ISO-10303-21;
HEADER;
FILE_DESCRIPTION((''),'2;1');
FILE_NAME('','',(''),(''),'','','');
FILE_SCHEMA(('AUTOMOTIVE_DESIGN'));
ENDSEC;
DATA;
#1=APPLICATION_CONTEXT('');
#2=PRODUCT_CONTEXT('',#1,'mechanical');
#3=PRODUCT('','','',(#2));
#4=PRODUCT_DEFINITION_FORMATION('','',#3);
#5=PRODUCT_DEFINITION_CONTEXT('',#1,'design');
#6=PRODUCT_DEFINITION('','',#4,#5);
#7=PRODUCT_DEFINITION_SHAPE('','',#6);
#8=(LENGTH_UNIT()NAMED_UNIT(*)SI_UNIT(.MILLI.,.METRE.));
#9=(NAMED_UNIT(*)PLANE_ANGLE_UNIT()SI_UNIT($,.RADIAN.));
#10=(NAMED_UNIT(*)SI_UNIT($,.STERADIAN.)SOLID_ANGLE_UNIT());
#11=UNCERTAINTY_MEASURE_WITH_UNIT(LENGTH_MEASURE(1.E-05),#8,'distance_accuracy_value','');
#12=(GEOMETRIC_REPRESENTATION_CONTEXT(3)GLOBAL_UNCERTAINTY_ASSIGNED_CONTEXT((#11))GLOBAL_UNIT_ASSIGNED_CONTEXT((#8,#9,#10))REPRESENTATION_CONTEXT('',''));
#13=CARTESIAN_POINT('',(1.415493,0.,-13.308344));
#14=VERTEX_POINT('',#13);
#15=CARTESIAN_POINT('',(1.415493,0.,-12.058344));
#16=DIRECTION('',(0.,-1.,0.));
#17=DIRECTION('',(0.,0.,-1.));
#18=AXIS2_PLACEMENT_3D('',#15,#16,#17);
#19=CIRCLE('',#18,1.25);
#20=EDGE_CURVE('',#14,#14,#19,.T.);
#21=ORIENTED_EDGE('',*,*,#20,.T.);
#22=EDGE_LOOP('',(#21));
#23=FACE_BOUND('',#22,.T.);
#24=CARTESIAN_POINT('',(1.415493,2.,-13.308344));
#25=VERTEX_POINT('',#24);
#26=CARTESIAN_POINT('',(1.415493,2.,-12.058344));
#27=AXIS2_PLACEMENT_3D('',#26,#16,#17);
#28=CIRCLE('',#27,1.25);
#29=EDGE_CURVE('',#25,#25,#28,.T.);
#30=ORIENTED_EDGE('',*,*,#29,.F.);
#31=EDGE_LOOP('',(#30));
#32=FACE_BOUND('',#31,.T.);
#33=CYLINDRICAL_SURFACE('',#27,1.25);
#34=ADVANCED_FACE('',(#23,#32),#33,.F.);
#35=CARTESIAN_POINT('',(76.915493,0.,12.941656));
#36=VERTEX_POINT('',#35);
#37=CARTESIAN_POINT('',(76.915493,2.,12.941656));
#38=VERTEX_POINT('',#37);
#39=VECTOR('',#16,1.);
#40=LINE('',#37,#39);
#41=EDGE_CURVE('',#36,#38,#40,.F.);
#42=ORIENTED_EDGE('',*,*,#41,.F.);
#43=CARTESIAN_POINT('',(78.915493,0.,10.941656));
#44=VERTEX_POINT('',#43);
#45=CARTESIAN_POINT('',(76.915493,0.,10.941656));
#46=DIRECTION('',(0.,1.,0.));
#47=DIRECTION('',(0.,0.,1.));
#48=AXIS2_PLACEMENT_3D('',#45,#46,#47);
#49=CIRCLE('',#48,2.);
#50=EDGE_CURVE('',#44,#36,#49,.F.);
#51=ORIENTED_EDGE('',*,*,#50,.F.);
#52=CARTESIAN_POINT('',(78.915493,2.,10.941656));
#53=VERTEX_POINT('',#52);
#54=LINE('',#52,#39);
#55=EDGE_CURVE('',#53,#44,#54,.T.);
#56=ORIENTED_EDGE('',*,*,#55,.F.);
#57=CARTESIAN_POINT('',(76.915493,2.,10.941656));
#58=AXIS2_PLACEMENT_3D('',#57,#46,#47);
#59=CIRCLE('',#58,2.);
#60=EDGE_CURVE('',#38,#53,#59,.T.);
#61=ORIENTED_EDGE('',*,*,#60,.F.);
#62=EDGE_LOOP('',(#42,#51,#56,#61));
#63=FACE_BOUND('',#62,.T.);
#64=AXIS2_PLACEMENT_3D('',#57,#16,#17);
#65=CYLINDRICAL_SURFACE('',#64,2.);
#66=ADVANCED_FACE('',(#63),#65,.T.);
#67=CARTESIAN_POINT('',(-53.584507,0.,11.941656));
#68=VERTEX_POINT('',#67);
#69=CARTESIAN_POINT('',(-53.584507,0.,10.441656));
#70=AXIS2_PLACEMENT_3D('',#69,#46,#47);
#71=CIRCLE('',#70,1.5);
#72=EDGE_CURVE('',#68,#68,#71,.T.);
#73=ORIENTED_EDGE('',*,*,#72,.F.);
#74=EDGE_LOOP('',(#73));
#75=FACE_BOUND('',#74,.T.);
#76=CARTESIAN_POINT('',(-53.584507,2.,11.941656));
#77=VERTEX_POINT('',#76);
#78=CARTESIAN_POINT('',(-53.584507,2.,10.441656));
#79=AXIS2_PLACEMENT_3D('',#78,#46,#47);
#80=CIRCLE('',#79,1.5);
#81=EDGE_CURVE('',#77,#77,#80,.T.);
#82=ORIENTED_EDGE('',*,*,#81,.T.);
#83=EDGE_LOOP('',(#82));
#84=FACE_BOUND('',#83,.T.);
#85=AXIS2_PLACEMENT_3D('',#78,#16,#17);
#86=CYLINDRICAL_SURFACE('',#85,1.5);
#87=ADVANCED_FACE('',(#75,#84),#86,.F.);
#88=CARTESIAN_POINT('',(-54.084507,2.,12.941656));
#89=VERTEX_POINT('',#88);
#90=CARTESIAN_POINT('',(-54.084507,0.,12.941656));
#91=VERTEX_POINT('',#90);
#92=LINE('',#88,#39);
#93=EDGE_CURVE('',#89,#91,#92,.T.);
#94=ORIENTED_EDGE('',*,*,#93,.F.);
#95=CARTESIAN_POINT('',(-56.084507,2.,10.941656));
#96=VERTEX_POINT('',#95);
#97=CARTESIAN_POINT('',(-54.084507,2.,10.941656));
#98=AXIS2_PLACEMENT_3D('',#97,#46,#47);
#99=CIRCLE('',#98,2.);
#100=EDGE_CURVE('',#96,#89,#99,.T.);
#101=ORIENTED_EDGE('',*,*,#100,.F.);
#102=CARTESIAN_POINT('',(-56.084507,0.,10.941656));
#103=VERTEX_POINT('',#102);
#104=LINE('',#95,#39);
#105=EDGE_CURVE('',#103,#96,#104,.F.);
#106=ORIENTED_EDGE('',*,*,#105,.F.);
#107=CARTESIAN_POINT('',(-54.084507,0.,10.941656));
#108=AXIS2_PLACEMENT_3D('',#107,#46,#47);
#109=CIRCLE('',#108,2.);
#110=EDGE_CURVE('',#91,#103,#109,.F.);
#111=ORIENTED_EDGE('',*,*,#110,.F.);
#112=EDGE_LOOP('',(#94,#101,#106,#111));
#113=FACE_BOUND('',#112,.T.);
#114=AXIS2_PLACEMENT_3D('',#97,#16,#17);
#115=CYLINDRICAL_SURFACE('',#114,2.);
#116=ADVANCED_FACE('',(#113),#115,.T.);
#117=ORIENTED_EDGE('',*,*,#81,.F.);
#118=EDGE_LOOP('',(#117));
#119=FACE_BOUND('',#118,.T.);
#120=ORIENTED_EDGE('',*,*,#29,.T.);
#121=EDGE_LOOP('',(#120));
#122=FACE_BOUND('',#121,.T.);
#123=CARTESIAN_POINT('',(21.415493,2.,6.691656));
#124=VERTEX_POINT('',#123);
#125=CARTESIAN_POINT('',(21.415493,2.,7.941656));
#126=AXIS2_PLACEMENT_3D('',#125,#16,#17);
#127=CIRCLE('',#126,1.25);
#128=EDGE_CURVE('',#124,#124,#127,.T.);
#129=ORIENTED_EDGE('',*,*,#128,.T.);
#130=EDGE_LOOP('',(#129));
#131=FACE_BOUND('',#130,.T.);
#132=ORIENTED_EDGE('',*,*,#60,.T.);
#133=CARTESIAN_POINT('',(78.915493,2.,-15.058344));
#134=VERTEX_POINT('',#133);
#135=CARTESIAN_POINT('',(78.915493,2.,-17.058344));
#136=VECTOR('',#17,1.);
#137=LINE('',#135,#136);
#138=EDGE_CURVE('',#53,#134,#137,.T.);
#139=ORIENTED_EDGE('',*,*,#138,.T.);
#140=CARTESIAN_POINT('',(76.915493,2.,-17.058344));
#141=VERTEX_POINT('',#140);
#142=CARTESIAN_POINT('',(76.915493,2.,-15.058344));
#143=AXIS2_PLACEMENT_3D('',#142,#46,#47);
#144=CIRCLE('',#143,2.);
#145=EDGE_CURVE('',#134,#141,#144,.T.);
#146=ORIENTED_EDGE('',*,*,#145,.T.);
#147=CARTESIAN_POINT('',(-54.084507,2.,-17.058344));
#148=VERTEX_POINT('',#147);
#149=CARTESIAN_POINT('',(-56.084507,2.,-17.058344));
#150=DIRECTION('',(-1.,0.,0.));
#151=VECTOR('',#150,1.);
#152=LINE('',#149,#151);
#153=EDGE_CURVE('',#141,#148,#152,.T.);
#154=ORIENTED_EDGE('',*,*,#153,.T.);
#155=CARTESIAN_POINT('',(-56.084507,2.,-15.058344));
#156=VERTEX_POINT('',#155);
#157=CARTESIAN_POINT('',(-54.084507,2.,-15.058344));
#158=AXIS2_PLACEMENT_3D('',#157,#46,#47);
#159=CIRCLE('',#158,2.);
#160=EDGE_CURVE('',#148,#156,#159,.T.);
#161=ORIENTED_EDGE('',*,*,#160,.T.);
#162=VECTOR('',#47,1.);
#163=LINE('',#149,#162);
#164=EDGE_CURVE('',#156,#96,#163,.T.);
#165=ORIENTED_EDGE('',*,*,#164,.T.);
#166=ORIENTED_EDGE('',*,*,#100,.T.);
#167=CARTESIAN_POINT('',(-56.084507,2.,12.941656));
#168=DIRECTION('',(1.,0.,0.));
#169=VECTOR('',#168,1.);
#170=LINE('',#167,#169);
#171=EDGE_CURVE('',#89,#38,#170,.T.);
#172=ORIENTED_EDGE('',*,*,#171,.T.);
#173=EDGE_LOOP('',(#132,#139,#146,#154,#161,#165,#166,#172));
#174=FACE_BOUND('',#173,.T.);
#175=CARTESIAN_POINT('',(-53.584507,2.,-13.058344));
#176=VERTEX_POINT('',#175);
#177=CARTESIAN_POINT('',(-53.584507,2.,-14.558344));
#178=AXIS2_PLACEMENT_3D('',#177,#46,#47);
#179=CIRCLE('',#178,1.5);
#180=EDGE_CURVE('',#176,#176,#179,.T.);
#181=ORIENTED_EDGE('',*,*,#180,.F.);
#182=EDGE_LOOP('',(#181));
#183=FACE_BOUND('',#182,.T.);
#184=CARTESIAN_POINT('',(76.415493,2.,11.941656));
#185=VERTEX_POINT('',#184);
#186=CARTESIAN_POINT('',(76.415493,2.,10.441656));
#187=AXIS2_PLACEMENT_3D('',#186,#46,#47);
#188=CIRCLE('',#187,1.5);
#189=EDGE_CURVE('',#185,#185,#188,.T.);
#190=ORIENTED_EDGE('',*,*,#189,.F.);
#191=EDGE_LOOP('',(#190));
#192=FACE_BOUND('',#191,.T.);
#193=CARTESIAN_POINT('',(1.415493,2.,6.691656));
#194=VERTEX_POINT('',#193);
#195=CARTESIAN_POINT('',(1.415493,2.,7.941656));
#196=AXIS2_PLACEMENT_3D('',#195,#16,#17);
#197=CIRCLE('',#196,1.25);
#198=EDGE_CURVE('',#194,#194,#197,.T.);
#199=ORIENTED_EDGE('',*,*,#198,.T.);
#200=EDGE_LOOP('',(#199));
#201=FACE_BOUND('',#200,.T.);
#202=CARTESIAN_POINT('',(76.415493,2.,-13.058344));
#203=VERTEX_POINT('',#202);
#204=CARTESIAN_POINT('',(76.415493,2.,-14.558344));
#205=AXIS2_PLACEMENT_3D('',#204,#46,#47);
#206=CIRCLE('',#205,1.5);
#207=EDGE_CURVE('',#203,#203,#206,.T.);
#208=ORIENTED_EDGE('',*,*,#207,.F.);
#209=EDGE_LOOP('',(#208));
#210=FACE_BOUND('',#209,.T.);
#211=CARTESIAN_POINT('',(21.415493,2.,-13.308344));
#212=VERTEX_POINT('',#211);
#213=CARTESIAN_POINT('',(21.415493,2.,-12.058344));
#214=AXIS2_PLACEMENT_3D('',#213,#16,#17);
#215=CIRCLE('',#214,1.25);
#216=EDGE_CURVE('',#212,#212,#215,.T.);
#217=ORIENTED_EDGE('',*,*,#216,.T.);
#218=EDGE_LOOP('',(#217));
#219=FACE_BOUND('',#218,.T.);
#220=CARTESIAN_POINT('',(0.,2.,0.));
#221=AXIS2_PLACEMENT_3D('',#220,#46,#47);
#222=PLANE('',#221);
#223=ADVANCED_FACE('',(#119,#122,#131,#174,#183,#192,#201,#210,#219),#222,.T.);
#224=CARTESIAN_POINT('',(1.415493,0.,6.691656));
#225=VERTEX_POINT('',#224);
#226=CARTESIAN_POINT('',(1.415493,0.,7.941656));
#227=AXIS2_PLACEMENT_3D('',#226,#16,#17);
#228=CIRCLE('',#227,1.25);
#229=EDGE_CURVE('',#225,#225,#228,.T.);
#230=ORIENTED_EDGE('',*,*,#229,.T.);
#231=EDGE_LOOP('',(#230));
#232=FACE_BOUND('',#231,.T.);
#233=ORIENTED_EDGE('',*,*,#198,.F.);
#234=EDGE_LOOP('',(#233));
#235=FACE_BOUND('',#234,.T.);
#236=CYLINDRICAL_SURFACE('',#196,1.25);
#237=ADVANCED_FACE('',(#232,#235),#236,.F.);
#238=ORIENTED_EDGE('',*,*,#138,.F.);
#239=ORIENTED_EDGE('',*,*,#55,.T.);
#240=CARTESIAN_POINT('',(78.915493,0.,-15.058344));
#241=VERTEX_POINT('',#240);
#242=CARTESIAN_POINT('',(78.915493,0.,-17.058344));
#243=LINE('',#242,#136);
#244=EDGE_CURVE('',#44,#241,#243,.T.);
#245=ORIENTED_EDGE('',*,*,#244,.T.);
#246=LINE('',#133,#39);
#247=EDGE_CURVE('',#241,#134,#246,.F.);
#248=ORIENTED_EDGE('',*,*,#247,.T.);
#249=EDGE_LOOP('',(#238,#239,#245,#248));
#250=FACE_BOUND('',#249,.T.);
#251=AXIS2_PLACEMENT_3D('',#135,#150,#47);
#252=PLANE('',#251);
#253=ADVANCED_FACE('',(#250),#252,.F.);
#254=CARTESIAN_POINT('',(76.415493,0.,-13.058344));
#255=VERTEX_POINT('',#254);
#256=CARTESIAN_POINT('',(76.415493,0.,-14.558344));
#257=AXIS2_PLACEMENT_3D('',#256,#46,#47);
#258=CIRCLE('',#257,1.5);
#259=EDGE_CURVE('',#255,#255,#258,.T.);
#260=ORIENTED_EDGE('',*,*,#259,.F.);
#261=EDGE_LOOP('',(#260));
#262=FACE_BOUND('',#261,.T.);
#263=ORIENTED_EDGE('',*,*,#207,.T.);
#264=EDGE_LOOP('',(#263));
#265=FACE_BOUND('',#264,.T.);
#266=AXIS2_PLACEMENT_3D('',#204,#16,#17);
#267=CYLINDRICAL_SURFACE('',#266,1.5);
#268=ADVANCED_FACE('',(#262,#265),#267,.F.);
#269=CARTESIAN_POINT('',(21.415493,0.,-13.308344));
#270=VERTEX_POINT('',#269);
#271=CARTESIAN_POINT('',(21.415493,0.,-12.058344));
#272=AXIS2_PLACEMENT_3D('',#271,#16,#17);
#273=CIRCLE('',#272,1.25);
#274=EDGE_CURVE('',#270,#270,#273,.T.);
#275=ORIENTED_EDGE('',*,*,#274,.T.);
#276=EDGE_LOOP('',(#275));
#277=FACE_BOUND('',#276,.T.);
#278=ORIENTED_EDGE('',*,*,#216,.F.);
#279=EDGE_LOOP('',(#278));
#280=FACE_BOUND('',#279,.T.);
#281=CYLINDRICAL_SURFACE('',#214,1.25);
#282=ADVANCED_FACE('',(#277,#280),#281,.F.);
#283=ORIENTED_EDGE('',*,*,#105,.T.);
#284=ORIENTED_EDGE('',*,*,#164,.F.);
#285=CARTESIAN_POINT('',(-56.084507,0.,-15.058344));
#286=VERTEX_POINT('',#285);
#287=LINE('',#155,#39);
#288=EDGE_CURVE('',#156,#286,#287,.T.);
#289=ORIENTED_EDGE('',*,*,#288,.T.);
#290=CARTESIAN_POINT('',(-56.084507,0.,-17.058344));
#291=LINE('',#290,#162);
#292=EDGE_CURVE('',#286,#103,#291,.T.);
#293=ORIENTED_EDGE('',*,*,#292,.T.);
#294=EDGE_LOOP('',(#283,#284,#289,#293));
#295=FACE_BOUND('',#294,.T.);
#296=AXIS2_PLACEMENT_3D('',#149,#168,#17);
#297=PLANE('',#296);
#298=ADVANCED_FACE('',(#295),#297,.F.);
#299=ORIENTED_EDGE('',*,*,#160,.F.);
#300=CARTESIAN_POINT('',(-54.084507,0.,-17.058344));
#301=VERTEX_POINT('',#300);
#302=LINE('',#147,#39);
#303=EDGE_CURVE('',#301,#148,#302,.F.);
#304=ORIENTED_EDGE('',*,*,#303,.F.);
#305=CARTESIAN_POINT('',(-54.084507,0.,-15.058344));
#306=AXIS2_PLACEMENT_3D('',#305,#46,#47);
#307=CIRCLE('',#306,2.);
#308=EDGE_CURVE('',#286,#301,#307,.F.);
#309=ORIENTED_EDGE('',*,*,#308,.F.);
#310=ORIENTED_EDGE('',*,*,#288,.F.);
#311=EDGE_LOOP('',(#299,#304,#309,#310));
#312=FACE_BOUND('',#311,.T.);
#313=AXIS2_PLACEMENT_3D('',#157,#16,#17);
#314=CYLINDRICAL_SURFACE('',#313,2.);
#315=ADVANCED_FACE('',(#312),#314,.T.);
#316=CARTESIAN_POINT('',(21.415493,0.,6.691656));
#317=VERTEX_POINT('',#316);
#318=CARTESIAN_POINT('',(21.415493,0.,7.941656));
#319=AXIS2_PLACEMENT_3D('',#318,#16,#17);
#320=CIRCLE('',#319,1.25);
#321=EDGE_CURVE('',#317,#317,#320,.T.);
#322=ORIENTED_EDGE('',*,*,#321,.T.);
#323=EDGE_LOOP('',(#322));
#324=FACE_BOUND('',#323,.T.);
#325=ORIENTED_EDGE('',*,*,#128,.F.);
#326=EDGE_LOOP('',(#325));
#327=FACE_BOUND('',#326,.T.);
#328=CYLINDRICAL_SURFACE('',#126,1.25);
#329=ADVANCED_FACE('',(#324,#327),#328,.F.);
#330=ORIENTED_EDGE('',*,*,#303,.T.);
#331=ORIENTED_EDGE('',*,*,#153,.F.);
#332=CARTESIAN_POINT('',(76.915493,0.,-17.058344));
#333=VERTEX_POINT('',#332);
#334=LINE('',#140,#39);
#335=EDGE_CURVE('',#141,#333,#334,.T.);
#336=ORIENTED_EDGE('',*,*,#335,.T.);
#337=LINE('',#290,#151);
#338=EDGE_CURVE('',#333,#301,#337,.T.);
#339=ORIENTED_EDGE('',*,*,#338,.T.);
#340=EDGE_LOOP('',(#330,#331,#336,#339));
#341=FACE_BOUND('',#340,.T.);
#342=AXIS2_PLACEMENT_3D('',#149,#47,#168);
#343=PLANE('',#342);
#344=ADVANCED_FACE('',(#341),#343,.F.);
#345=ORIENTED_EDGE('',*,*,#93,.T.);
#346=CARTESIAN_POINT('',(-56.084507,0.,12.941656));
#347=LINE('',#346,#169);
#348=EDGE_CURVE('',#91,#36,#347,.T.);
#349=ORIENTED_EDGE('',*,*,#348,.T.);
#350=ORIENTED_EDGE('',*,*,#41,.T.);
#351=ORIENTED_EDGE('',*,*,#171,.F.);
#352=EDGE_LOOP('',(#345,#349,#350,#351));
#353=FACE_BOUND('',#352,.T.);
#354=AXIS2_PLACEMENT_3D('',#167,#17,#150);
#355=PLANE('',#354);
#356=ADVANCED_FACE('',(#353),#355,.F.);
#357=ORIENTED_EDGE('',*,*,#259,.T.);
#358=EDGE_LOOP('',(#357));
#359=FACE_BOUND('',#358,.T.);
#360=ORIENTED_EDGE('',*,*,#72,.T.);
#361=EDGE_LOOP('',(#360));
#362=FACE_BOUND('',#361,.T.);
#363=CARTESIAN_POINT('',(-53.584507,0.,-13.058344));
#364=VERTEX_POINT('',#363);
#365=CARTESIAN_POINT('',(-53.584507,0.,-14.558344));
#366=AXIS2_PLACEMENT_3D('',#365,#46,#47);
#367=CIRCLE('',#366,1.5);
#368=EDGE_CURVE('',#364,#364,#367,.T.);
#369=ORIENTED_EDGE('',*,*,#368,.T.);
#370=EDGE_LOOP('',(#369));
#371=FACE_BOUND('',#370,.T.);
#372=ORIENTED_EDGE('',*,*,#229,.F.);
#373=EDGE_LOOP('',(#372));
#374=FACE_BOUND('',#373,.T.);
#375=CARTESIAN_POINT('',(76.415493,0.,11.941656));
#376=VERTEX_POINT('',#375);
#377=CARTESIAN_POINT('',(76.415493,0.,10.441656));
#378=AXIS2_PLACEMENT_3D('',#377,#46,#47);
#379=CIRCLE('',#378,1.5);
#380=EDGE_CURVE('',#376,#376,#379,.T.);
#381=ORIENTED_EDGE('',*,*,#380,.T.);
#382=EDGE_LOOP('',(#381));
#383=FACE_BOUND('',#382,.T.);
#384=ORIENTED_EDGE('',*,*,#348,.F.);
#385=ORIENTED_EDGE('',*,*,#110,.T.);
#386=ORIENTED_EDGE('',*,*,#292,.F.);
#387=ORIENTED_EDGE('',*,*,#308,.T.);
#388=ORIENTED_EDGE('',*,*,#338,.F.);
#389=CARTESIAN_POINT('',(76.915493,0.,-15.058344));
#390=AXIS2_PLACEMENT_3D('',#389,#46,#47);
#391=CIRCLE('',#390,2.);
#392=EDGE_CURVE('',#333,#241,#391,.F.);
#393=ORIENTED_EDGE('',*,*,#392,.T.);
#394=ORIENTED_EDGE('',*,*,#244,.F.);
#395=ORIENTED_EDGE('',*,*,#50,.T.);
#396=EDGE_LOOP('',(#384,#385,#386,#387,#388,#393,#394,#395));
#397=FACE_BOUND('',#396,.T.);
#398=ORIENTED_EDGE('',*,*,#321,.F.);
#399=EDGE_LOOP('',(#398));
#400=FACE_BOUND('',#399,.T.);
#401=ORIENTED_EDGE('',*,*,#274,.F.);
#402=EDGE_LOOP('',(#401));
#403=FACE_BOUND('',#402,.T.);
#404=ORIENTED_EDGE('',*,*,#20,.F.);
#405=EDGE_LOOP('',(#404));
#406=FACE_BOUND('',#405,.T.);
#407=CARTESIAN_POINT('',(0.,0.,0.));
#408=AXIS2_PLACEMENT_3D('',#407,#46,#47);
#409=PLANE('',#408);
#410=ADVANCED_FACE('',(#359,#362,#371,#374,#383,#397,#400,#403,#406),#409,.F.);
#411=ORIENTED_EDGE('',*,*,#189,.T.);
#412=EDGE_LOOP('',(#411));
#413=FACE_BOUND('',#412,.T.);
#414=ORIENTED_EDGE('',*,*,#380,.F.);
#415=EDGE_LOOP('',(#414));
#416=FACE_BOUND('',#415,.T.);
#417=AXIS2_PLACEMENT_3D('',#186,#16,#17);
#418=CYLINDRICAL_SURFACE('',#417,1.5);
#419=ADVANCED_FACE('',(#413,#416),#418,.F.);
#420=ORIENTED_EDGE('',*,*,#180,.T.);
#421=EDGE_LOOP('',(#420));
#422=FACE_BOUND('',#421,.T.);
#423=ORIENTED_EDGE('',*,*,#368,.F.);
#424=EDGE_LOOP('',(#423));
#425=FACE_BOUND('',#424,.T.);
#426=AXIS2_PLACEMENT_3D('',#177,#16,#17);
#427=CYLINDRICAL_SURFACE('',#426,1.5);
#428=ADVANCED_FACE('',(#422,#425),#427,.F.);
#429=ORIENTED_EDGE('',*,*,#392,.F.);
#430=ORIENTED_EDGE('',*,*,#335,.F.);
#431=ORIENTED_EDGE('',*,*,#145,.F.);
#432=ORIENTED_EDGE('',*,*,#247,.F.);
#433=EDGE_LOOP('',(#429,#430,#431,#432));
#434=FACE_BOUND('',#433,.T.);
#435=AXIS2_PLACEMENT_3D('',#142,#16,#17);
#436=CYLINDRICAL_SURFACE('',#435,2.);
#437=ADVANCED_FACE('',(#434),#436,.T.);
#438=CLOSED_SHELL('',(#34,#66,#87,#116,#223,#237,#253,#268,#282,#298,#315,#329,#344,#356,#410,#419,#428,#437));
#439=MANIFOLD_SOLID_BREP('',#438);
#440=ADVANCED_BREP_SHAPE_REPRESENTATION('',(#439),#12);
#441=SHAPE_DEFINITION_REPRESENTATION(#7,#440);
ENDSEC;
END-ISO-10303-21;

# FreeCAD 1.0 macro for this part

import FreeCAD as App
import Part
import Sketcher
Q = App.Units.Quantity


def edges_at(feature, points):
    """Names of the edges that pass closest to the given points."""
    edges = feature.Shape.Edges
    near = lambda p: min(range(len(edges)), key=lambda i: edges[i].distToShape(Part.Vertex(*p))[0])
    return sorted({f"Edge{near(p) + 1}" for p in points})


def add_polygon(sketch, points):
    """Adds a closed chain of lines whose ends are joined by coincident constraints."""
    first, n = sketch.GeometryCount, len(points)
    for a, b in zip(points, points[1:] + points[:1]):
        sketch.addGeometry(Part.LineSegment(App.Vector(*a, 0), App.Vector(*b, 0)), False)
    for i in range(n):
        sketch.addConstraint(Sketcher.Constraint("Coincident", first + i, 2, first + (i + 1) % n, 1))

doc = App.newDocument("Part")
params = doc.addObject("Spreadsheet::Sheet", "Params")
for row, (alias, value) in enumerate([
    ("sketch1_diameter", "3 mm"),
    ("sketch1_width", "135 mm"),
    ("sketch1_height", "30 mm"),
    ("pad1_length", "2 mm"),
    ("fillet_radius", "2 mm"),
    ("sketch2_diameter", "2.5 mm"),
    ("pocket1_length", "2 mm"),
], start=1):
    params.set(f"A{row}", alias)
    params.set(f"B{row}", "=" + value)
    params.setAlias(f"B{row}", alias)

body = doc.addObject("PartDesign::Body", "Body")

sketch1 = doc.addObject("Sketcher::SketchObject", "Sketch")
body.addObject(sketch1)
sketch1.AttachmentSupport = (doc.XZ_Plane, [""])
sketch1.MapMode = "FlatFace"
add_polygon(sketch1, [(-56.1, -17.1), (-56.1, 12.9), (78.9, 12.9), (78.9, -17.1)])
sketch1.addGeometry(Part.Circle(App.Vector(-53.6, 10.4, 0), App.Vector(0, 0, 1), 1.5), False)
sketch1.addGeometry(Part.Circle(App.Vector(76.4, 10.4, 0), App.Vector(0, 0, 1), 1.5), False)
sketch1.addGeometry(Part.Circle(App.Vector(-53.6, -14.6, 0), App.Vector(0, 0, 1), 1.5), False)
sketch1.addGeometry(Part.Circle(App.Vector(76.4, -14.6, 0), App.Vector(0, 0, 1), 1.5), False)
sketch1.addConstraint(Sketcher.Constraint("Vertical", 0))
sketch1.addConstraint(Sketcher.Constraint("Horizontal", 1))
sketch1.addConstraint(Sketcher.Constraint("Vertical", 2))
sketch1.addConstraint(Sketcher.Constraint("Horizontal", 3))
sketch1.addConstraint(Sketcher.Constraint("Equal", 4, 5))
sketch1.addConstraint(Sketcher.Constraint("Equal", 5, 6))
sketch1.addConstraint(Sketcher.Constraint("Equal", 6, 7))
sketch1.addConstraint(Sketcher.Constraint("Horizontal", 4, 3, 5, 3))
sketch1.addConstraint(Sketcher.Constraint("Horizontal", 6, 3, 7, 3))
sketch1.addConstraint(Sketcher.Constraint("Vertical", 4, 3, 6, 3))
sketch1.addConstraint(Sketcher.Constraint("Vertical", 5, 3, 7, 3))
sketch1.addConstraint(Sketcher.Constraint("Diameter", 4, Q("3 mm")))
sketch1.addConstraint(Sketcher.Constraint("DistanceX", 1, 1, 1, 2, Q("135 mm")))
sketch1.addConstraint(Sketcher.Constraint("DistanceY", 0, 1, 0, 2, Q("30 mm")))
sketch1.addConstraint(Sketcher.Constraint("DistanceX", 4, 3, 5, 3, Q("130 mm")))
sketch1.addConstraint(Sketcher.Constraint("DistanceY", 6, 3, 4, 3, Q("25 mm")))
sketch1.addConstraint(Sketcher.Constraint("DistanceX", 0, 2, 4, 3, Q("2.5 mm")))
sketch1.addConstraint(Sketcher.Constraint("DistanceY", 4, 3, 0, 2, Q("2.5 mm")))
sketch1.addConstraint(Sketcher.Constraint("DistanceX", 4, 3, -1, 1, Q("53.584507 mm")))
sketch1.addConstraint(Sketcher.Constraint("DistanceY", -1, 1, 4, 3, Q("10.441656 mm")))
sketch1.setExpression("Constraints[15]", "Params.sketch1_diameter")
sketch1.setExpression("Constraints[16]", "Params.sketch1_width")
sketch1.setExpression("Constraints[17]", "Params.sketch1_height")
pad1 = doc.addObject("PartDesign::Pad", "Pad")
body.addObject(pad1)
pad1.Profile = sketch1
pad1.setExpression("Length", "Params.pad1_length")
pad1.Reversed = True
doc.recompute()

fillet = doc.addObject("PartDesign::Fillet", "Fillet")
body.addObject(fillet)
fillet.Base = (pad1, edges_at(pad1, [
    (-56.085, 1, -17.058),
    (78.915, 1, -17.058),
    (78.915, 1, 12.942),
    (-56.085, 1, 12.942),
]))
fillet.setExpression("Radius", "Params.fillet_radius")

sketch2 = doc.addObject("Sketcher::SketchObject", "Sketch001")
body.addObject(sketch2)
sketch2.AttachmentSupport = (doc.XZ_Plane, [""])
sketch2.MapMode = "FlatFace"
sketch2.addGeometry(Part.Circle(App.Vector(1.4, 7.9, 0), App.Vector(0, 0, 1), 1.2), False)
sketch2.addGeometry(Part.Circle(App.Vector(21.4, 7.9, 0), App.Vector(0, 0, 1), 1.2), False)
sketch2.addGeometry(Part.Circle(App.Vector(1.4, -12.1, 0), App.Vector(0, 0, 1), 1.2), False)
sketch2.addGeometry(Part.Circle(App.Vector(21.4, -12.1, 0), App.Vector(0, 0, 1), 1.2), False)
sketch2.addConstraint(Sketcher.Constraint("Equal", 0, 1))
sketch2.addConstraint(Sketcher.Constraint("Equal", 1, 2))
sketch2.addConstraint(Sketcher.Constraint("Equal", 2, 3))
sketch2.addConstraint(Sketcher.Constraint("Horizontal", 0, 3, 1, 3))
sketch2.addConstraint(Sketcher.Constraint("Horizontal", 2, 3, 3, 3))
sketch2.addConstraint(Sketcher.Constraint("Vertical", 0, 3, 2, 3))
sketch2.addConstraint(Sketcher.Constraint("Vertical", 1, 3, 3, 3))
sketch2.addConstraint(Sketcher.Constraint("Diameter", 0, Q("2.5 mm")))
sketch2.addConstraint(Sketcher.Constraint("DistanceX", 0, 3, 1, 3, Q("20 mm")))
sketch2.addConstraint(Sketcher.Constraint("DistanceY", 2, 3, 0, 3, Q("20 mm")))
sketch2.addConstraint(Sketcher.Constraint("DistanceX", -1, 1, 0, 3, Q("1.415493 mm")))
sketch2.addConstraint(Sketcher.Constraint("DistanceY", -1, 1, 0, 3, Q("7.941656 mm")))
sketch2.setExpression("Constraints[7]", "Params.sketch2_diameter")
pocket1 = doc.addObject("PartDesign::Pocket", "Pocket")
body.addObject(pocket1)
pocket1.Profile = sketch2
pocket1.setExpression("Length", "Params.pocket1_length")

doc.recompute()
